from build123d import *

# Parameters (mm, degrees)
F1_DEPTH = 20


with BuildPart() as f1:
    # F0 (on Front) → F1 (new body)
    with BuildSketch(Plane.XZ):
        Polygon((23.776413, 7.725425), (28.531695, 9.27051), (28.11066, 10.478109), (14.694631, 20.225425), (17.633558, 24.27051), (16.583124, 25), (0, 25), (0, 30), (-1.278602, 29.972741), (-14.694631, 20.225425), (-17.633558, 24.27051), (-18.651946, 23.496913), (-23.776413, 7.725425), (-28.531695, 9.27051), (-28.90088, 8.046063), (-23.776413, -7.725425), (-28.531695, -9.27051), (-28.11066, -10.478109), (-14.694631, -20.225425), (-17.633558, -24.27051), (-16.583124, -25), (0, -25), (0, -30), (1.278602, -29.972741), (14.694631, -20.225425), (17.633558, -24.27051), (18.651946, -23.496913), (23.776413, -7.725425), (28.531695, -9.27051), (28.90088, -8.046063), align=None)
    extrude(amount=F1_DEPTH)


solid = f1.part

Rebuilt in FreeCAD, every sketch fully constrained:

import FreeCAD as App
import Part
import Sketcher

V = App.Vector
Q = App.Units.Quantity


def add_polygon(sketch, points):
    """Adds a closed chain of lines whose ends are joined by coincident constraints."""
    first, n = sketch.GeometryCount, len(points)
    for a, b in zip(points, points[1:] + points[:1]):
        sketch.addGeometry(Part.LineSegment(App.Vector(*a, 0), App.Vector(*b, 0)), False)
    for i in range(n):
        sketch.addConstraint(Sketcher.Constraint("Coincident", first + i, 2, first + (i + 1) % n, 1))

doc = App.newDocument("Part")
body = doc.addObject("PartDesign::Body", "Body")

sketch1 = body.newObject("Sketcher::SketchObject", "Sketch")
sketch1.AttachmentSupport = (doc.getObject("XZ_Plane"), [""])
sketch1.MapMode = "FlatFace"
add_polygon(sketch1, [(23.8, 7.7), (28.5, 9.3), (28.1, 10.5), (14.7, 20.2), (17.6, 24.3), (16.6, 25), (0, 25), (0, 30), (-1.3, 30), (-14.7, 20.2), (-17.6, 24.3), (-18.7, 23.5), (-23.8, 7.7), (-28.5, 9.3), (-28.9, 8), (-23.8, -7.7), (-28.5, -9.3), (-28.1, -10.5), (-14.7, -20.2), (-17.6, -24.3), (-16.6, -25), (0, -25), (0, -30), (1.3, -30), (14.7, -20.2), (17.6, -24.3), (18.7, -23.5), (23.8, -7.7), (28.5, -9.3), (28.9, -8)])
sketch1.addConstraint([
    Sketcher.Constraint("Horizontal", 5),
    Sketcher.Constraint("Vertical", 6),
    Sketcher.Constraint("Horizontal", 20),
    Sketcher.Constraint("Vertical", 21),
    Sketcher.Constraint("Symmetric", 0, 2, 15, 2, -1, 1),
    Sketcher.Constraint("Symmetric", 1, 2, 16, 2, -1, 1),
    Sketcher.Constraint("Symmetric", 2, 2, 17, 2, -1, 1),
    Sketcher.Constraint("Symmetric", 3, 2, 18, 2, -1, 1),
    Sketcher.Constraint("Symmetric", 4, 2, 19, 2, -1, 1),
    Sketcher.Constraint("Symmetric", 6, 2, 21, 2, -1, 1),
    Sketcher.Constraint("Symmetric", 7, 2, 22, 2, -1, 1),
    Sketcher.Constraint("Symmetric", 8, 2, 23, 2, -1, 1),
    Sketcher.Constraint("Symmetric", 9, 2, 24, 2, -1, 1),
    Sketcher.Constraint("Symmetric", 10, 2, 25, 2, -1, 1),
    Sketcher.Constraint("Symmetric", 11, 2, 26, 2, -1, 1),
    Sketcher.Constraint("Symmetric", 12, 2, 27, 2, -1, 1),
    Sketcher.Constraint("Symmetric", 13, 2, 28, 2, -1, 1),
    Sketcher.Constraint("Symmetric", 14, 2, 29, 2, -1, 1),
    Sketcher.Constraint("Symmetric", 2, 2, 8, 2, -2),
    Sketcher.Constraint("Symmetric", 3, 2, 9, 2, -2),
    Sketcher.Constraint("Symmetric", 0, 2, 12, 2, -2),
    Sketcher.Constraint("Symmetric", 14, 2, 26, 2, -2),
    Sketcher.Constraint("PointOnObject", 5, 2, -2),
    Sketcher.Constraint("Perpendicular", 2, 3),
    Sketcher.Constraint("Perpendicular", 8, 9),
    Sketcher.Constraint("Perpendicular", 11, 12),
    Sketcher.Constraint("Perpendicular", 0, 14),
    Sketcher.Constraint("Equal", 0, 3),
    Sketcher.Constraint("Equal", 1, 4),
    Sketcher.Constraint("Equal", 4, 7),
    Sketcher.Constraint("Equal", 2, 8),
    Sketcher.Constraint("Equal", 7, 10),
    Sketcher.Constraint("Equal", 8, 11),
    Sketcher.Constraint("Equal", 10, 13),
    Sketcher.Constraint("Equal", 11, 14),
    Sketcher.Constraint("DistanceY", 6, 1, 6, 2, Q("5 mm")),
    Sketcher.Constraint("Angle", 0, Q("18.000002 deg")),
    Sketcher.Constraint("Angle", 2, Q("143.999999 deg")),
    Sketcher.Constraint("Distance", 0, Q("4.999999 mm")),
    Sketcher.Constraint("DistanceY", -1, 1, 4, 2, Q("25 mm")),
    Sketcher.Constraint("DistanceY", 0, 2, 3, 2, Q("15 mm")),
    Sketcher.Constraint("DistanceY", 0, 2, 1, 2, Q("1.207599 mm")),
])
pad1 = body.newObject("PartDesign::Pad", "Pad")
pad1.Profile = sketch1
pad1.Length = 20

doc.recompute()
